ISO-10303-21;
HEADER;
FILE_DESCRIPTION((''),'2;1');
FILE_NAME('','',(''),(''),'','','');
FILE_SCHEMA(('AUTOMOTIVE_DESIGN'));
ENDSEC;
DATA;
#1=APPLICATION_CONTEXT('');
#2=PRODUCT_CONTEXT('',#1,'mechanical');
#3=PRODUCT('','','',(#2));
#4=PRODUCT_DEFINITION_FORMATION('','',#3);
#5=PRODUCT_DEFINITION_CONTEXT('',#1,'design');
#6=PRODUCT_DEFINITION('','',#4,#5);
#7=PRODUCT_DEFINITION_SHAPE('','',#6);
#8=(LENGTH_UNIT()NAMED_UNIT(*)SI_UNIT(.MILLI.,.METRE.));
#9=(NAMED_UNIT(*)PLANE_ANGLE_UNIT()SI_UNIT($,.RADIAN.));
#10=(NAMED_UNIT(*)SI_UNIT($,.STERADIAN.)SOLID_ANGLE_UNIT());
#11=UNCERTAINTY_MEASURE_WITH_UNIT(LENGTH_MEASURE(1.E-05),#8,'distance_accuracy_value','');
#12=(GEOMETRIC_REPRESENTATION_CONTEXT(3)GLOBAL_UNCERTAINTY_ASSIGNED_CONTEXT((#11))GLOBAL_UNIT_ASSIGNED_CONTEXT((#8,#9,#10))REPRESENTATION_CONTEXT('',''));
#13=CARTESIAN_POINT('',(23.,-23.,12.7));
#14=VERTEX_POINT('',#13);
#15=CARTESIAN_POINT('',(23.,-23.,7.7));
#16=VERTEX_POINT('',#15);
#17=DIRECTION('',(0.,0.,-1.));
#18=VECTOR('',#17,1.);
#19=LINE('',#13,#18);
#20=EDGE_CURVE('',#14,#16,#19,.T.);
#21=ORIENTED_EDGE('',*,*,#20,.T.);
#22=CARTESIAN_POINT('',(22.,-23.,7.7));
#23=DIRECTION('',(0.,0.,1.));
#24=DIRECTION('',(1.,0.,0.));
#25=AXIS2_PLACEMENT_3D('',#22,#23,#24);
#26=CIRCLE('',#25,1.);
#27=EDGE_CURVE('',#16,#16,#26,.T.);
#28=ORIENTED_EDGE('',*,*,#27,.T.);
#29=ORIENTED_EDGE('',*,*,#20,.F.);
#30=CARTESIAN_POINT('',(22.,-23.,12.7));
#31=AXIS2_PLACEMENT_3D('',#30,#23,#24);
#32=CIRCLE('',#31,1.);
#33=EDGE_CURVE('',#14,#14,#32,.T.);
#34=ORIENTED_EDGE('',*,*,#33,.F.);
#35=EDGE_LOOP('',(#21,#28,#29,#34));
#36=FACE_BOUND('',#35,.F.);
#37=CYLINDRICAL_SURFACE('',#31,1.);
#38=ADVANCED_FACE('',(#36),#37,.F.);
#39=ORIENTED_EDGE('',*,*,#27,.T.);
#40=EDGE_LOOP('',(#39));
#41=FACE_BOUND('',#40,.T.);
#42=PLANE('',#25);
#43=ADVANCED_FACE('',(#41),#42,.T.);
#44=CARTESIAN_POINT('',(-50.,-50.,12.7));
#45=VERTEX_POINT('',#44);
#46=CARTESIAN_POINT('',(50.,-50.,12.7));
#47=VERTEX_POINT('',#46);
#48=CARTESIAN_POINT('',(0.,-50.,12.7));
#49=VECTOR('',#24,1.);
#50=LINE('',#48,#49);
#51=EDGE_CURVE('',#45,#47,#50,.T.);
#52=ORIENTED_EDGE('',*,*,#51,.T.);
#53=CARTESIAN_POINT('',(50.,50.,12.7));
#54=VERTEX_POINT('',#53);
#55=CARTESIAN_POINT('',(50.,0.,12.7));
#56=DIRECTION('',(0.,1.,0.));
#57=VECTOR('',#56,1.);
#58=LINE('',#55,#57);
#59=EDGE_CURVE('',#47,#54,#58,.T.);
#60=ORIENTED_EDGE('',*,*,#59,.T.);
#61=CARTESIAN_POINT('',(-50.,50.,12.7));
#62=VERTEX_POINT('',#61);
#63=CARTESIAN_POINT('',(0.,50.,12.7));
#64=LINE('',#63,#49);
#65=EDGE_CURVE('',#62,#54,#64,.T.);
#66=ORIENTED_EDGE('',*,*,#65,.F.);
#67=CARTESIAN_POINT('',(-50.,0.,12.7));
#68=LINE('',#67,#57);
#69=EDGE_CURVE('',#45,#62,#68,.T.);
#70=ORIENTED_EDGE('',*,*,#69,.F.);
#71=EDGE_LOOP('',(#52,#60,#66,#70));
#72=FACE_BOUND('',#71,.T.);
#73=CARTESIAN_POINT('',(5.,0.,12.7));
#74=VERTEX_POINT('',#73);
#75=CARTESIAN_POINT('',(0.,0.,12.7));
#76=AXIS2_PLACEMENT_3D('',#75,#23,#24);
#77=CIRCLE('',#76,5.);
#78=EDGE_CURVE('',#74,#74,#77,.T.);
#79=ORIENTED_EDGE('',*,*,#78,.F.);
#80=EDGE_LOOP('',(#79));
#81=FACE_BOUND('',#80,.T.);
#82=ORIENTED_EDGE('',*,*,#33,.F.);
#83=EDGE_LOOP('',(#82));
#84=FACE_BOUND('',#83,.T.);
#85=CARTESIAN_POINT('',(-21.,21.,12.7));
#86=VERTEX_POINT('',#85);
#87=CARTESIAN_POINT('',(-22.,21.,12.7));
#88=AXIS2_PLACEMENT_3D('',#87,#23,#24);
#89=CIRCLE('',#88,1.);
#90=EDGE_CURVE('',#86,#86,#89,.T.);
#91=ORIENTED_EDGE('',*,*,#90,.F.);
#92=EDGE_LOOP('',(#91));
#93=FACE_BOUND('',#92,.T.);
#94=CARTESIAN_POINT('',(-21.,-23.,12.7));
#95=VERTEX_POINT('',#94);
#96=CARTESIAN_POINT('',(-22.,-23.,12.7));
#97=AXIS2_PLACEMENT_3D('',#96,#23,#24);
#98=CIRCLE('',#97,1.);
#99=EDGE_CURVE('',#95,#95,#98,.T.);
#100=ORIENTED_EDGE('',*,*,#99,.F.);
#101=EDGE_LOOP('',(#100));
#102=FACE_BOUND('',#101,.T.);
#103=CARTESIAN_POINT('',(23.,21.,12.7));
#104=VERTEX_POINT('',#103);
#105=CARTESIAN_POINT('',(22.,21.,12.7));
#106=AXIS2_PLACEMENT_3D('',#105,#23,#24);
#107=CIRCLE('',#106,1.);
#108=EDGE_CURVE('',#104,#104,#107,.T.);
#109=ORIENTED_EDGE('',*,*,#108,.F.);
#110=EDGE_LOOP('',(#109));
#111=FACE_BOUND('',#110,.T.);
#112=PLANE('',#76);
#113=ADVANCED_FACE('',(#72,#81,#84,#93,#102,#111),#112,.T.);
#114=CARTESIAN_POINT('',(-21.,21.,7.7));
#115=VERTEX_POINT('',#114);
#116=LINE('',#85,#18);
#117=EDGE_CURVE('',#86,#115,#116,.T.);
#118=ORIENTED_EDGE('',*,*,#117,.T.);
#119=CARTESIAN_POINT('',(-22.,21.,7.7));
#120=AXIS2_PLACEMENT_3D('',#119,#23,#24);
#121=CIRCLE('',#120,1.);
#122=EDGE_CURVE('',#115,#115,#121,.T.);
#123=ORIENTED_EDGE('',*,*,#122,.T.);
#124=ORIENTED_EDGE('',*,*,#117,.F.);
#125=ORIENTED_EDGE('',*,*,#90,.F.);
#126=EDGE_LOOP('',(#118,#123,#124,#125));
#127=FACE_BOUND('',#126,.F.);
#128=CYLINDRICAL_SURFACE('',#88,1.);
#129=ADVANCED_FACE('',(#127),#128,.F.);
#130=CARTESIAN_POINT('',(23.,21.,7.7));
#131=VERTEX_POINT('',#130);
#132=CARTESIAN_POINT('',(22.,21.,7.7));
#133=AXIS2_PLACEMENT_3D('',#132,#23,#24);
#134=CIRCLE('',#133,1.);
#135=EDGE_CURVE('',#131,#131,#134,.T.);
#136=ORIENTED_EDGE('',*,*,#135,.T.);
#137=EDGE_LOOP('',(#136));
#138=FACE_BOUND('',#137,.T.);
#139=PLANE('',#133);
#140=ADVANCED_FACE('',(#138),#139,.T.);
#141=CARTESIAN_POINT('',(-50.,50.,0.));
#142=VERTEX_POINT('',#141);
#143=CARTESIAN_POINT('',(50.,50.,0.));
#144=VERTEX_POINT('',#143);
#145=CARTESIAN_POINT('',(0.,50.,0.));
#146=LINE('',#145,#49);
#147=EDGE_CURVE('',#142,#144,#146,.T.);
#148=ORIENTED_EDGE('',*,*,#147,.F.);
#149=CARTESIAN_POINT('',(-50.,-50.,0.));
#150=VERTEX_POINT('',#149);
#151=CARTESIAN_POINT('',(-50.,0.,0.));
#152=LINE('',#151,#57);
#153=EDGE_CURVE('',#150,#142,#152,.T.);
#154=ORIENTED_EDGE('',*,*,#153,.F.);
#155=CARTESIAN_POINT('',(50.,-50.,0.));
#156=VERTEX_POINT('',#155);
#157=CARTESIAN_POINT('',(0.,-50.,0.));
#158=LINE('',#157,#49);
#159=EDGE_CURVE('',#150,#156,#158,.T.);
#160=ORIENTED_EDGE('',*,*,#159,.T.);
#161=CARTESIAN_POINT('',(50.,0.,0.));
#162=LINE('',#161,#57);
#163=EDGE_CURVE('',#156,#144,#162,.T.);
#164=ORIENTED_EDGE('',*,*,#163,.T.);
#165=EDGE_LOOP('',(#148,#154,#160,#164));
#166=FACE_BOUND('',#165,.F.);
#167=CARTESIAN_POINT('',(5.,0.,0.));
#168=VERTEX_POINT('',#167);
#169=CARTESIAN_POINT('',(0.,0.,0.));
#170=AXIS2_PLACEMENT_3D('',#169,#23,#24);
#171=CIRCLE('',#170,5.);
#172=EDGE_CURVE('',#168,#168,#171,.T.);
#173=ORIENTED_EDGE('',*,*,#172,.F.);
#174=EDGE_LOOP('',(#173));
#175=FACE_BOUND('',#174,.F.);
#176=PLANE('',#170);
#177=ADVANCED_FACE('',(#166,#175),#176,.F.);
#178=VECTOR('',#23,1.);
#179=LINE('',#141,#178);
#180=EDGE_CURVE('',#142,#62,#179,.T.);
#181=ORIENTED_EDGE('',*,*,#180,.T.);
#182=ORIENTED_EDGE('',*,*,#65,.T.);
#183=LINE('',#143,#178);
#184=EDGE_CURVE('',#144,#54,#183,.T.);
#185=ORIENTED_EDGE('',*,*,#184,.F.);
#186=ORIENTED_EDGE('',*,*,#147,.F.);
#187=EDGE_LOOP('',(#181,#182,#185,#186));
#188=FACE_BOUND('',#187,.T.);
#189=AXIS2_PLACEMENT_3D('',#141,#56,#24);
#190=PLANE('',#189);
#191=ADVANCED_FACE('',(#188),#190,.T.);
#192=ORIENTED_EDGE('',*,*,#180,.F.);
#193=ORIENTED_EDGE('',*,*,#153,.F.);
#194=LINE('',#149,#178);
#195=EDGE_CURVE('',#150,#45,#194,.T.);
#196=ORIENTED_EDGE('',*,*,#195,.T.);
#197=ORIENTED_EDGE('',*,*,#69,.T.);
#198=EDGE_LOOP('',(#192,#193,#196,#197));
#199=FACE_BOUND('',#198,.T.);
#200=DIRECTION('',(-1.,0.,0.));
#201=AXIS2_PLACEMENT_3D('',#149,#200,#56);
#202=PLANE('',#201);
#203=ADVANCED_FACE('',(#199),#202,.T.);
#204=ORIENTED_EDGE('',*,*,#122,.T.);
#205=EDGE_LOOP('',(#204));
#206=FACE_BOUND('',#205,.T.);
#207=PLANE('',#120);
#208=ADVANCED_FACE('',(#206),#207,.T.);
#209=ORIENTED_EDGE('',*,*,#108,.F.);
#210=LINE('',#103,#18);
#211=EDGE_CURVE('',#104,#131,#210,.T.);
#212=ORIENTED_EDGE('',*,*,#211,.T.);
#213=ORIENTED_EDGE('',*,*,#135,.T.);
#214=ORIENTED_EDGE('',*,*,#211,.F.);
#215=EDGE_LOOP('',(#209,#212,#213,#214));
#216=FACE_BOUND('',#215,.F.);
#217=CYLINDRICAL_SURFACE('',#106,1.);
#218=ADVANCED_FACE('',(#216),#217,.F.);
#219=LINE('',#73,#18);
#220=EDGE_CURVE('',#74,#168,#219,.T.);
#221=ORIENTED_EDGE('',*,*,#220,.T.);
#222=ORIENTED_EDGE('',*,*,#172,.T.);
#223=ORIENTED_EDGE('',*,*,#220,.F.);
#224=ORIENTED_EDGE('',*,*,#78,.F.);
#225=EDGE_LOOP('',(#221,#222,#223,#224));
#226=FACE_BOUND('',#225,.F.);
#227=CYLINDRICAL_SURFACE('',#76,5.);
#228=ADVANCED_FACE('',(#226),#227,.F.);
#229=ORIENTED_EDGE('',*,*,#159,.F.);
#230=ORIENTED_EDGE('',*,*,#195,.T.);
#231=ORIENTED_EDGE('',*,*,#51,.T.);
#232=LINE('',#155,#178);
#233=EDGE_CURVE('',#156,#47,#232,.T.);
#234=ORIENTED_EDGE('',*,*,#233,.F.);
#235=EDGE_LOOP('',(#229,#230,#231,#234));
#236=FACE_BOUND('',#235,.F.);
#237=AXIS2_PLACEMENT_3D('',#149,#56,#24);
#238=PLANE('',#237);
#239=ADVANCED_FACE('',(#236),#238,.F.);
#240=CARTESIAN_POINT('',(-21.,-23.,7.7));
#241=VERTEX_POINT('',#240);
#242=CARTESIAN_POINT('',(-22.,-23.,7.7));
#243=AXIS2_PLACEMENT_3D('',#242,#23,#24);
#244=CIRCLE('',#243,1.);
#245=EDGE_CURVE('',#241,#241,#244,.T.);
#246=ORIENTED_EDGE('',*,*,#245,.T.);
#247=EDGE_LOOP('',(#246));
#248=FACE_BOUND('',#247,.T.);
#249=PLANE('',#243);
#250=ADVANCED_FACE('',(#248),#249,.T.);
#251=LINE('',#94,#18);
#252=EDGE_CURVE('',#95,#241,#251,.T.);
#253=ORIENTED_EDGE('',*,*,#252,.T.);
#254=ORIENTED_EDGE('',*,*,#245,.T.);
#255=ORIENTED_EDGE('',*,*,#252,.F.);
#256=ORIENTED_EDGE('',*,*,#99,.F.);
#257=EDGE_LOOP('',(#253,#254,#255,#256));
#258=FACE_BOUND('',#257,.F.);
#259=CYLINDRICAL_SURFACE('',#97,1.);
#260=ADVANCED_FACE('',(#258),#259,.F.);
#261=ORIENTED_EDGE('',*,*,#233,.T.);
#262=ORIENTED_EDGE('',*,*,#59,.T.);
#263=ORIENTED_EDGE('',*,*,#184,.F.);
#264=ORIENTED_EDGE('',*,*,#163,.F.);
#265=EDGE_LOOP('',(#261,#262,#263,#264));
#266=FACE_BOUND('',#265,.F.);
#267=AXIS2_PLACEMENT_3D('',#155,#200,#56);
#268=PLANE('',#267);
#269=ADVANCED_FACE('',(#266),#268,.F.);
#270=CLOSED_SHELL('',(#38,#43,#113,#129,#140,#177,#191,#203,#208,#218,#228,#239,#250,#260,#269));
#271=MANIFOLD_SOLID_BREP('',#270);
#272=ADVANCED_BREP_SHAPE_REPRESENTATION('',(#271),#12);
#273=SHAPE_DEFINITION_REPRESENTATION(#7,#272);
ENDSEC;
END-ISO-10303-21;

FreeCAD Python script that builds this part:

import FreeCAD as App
import Part
import Sketcher
Q = App.Units.Quantity


def add_polygon(sketch, points):
    """Adds a closed chain of lines whose ends are joined by coincident constraints."""
    first, n = sketch.GeometryCount, len(points)
    for a, b in zip(points, points[1:] + points[:1]):
        sketch.addGeometry(Part.LineSegment(App.Vector(*a, 0), App.Vector(*b, 0)), False)
    for i in range(n):
        sketch.addConstraint(Sketcher.Constraint("Coincident", first + i, 2, first + (i + 1) % n, 1))

doc = App.newDocument("Part")
body = doc.addObject("PartDesign::Body", "Body")

# Sketch on XY plane
sketch1 = doc.addObject("Sketcher::SketchObject", "Sketch")
body.addObject(sketch1)
sketch1.AttachmentSupport = (doc.XY_Plane, [""])
sketch1.MapMode = "FlatFace"
add_polygon(sketch1, [(-50, 50), (-50, -50), (50, -50), (50, 50)])  # lines 0-3
sketch1.addConstraint(Sketcher.Constraint("Vertical", 0))
sketch1.addConstraint(Sketcher.Constraint("Horizontal", 1))
sketch1.addConstraint(Sketcher.Constraint("Vertical", 2))
sketch1.addConstraint(Sketcher.Constraint("Horizontal", 3))
sketch1.addConstraint(Sketcher.Constraint("Symmetric", 0, 2, 2, 2, -1, 1))
sketch1.addConstraint(Sketcher.Constraint("Equal", 3, 0))
sketch1.addConstraint(Sketcher.Constraint("DistanceX", 1, 1, 1, 2, Q("100 mm")))
pad1 = doc.addObject("PartDesign::Pad", "Pad")
body.addObject(pad1)
pad1.Profile = sketch1
pad1.Length = 12.7

# Sketch on XY plane
sketch2 = doc.addObject("Sketcher::SketchObject", "Sketch001")
body.addObject(sketch2)
sketch2.AttachmentSupport = (doc.XY_Plane, [""])
sketch2.MapMode = "FlatFace"
sketch2.AttachmentOffset = App.Placement(App.Vector(0, 0, 12.7), App.Rotation())
sketch2.addGeometry(Part.Circle(App.Vector(0, 0, 0), App.Vector(0, 0, 1), 5), False)
sketch2.addConstraint(Sketcher.Constraint("Coincident", 0, 3, -1, 1))
sketch2.addConstraint(Sketcher.Constraint("Diameter", 0, Q("10 mm")))
pocket1 = doc.addObject("PartDesign::Pocket", "Pocket")
body.addObject(pocket1)
pocket1.Profile = sketch2
pocket1.Length = 25

# Sketch on XY plane
sketch3 = doc.addObject("Sketcher::SketchObject", "Sketch002")
body.addObject(sketch3)
sketch3.AttachmentSupport = (doc.XY_Plane, [""])
sketch3.MapMode = "FlatFace"
sketch3.AttachmentOffset = App.Placement(App.Vector(0, 0, 12.7), App.Rotation())
sketch3.addGeometry(Part.Circle(App.Vector(-22, 21, 0), App.Vector(0, 0, 1), 1), False)
sketch3.addGeometry(Part.Circle(App.Vector(22, 21, 0), App.Vector(0, 0, 1), 1), False)
sketch3.addGeometry(Part.Circle(App.Vector(22, -23, 0), App.Vector(0, 0, 1), 1), False)
sketch3.addGeometry(Part.Circle(App.Vector(-22, -23, 0), App.Vector(0, 0, 1), 1), False)
sketch3.addConstraint(Sketcher.Constraint("Equal", 0, 1))
sketch3.addConstraint(Sketcher.Constraint("Equal", 1, 2))
sketch3.addConstraint(Sketcher.Constraint("Equal", 2, 3))
sketch3.addConstraint(Sketcher.Constraint("Symmetric", 0, 3, 1, 3, -2))
sketch3.addConstraint(Sketcher.Constraint("Symmetric", 2, 3, 3, 3, -2))
sketch3.addConstraint(Sketcher.Constraint("Vertical", 1, 3, 2, 3))
sketch3.addConstraint(Sketcher.Constraint("Diameter", 0, Q("2 mm")))
sketch3.addConstraint(Sketcher.Constraint("DistanceX", 0, 3, -1, 1, Q("22 mm")))
sketch3.addConstraint(Sketcher.Constraint("DistanceY", -1, 1, 0, 3, Q("21 mm")))
sketch3.addConstraint(Sketcher.Constraint("DistanceY", 2, 3, -1, 1, Q("23 mm")))
pocket2 = doc.addObject("PartDesign::Pocket", "Pocket001")
body.addObject(pocket2)
pocket2.Profile = sketch3
pocket2.Length = 5

doc.recompute()
